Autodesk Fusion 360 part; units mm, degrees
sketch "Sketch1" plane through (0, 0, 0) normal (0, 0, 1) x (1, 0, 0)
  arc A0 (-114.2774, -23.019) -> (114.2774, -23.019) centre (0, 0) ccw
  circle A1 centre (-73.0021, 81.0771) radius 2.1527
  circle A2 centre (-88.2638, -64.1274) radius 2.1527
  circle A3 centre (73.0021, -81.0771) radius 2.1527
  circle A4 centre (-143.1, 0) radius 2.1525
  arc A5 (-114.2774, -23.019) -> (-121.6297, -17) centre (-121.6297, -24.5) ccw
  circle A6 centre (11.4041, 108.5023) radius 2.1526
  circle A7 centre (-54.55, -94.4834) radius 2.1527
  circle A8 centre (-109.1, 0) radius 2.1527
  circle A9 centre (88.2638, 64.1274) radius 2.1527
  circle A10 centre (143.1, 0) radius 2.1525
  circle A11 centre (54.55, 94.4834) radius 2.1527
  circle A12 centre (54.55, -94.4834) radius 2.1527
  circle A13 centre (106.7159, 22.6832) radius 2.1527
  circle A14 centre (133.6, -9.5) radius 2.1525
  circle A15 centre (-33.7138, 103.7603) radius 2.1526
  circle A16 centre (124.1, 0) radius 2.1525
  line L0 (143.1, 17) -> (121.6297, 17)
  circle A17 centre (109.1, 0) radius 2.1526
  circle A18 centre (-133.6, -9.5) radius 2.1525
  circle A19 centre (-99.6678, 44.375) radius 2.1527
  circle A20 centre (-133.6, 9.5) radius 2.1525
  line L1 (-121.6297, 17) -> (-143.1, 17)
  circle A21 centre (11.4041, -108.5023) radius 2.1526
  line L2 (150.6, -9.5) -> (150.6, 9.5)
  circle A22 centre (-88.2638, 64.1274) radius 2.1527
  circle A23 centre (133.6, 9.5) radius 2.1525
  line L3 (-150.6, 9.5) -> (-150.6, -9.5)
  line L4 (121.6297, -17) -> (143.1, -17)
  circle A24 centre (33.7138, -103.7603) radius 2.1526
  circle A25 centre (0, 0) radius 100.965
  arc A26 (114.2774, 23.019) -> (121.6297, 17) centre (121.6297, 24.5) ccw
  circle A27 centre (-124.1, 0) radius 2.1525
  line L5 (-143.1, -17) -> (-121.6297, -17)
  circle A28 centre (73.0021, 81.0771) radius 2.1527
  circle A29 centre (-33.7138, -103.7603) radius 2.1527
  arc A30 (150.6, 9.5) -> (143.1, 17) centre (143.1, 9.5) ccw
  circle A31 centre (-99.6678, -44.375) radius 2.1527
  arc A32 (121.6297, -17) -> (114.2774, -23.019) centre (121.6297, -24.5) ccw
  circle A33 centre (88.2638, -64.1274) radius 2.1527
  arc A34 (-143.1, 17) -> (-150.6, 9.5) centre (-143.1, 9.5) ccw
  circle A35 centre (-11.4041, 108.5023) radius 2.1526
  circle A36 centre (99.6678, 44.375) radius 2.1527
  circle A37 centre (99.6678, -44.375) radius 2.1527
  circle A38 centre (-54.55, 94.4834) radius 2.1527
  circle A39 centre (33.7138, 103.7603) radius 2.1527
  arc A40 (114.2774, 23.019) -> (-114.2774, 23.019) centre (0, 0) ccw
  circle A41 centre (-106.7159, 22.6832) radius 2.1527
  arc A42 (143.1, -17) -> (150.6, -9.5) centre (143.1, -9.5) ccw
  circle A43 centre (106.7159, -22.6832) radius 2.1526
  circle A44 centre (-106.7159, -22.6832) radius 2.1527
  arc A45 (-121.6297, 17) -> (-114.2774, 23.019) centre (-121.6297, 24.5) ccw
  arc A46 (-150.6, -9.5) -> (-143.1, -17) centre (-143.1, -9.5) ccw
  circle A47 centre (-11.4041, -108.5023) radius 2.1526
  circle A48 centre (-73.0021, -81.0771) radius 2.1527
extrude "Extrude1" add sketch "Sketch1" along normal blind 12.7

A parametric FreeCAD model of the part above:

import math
import FreeCAD as App
import Part
import Sketcher

V = App.Vector

doc = App.newDocument("Part")
body = doc.addObject("PartDesign::Body", "Body")

# Sketch on XY plane
sketch1 = body.newObject("Sketcher::SketchObject", "Sketch")
sketch1.AttachmentSupport = (doc.getObject("XY_Plane"), [""])
sketch1.MapMode = "FlatFace"
sketch1.addGeometry([
    Part.ArcOfCircle(Part.Circle(V(-121.6, -24.5, 0), V(0, 0, 1), 7.5), math.radians(11), math.radians(90)),  # 0
    Part.ArcOfCircle(Part.Circle(V(0, 0, 0), V(0, 0, 1), 116.6), math.radians(-169), math.radians(-11)),  # 1
    Part.ArcOfCircle(Part.Circle(V(121.6, -24.5, 0), V(0, 0, 1), 7.5), math.radians(90), math.radians(169)),  # 2
    Part.LineSegment(V(121.6, -17, 0), V(143.1, -17, 0)),  # 3
    Part.ArcOfCircle(Part.Circle(V(143.1, -9.5, 0), V(0, 0, 1), 7.5), math.radians(-90), math.radians(0)),  # 4
    Part.LineSegment(V(150.6, -9.5, 0), V(150.6, 9.5, 0)),  # 5
    Part.ArcOfCircle(Part.Circle(V(143.1, 9.5, 0), V(0, 0, 1), 7.5), math.radians(0), math.radians(90)),  # 6
    Part.LineSegment(V(143.1, 17, 0), V(121.6, 17, 0)),  # 7
    Part.ArcOfCircle(Part.Circle(V(121.6, 24.5, 0), V(0, 0, 1), 7.5), math.radians(-169), math.radians(-90)),  # 8
    Part.ArcOfCircle(Part.Circle(V(0, 0, 0), V(0, 0, 1), 116.6), math.radians(11), math.radians(169)),  # 9
    Part.ArcOfCircle(Part.Circle(V(-121.6, 24.5, 0), V(0, 0, 1), 7.5), math.radians(-90), math.radians(-11)),  # 10
    Part.LineSegment(V(-121.6, 17, 0), V(-143.1, 17, 0)),  # 11
    Part.ArcOfCircle(Part.Circle(V(-143.1, 9.5, 0), V(0, 0, 1), 7.5), math.radians(90), math.radians(180)),  # 12
    Part.LineSegment(V(-150.6, 9.5, 0), V(-150.6, -9.5, 0)),  # 13
    Part.ArcOfCircle(Part.Circle(V(-143.1, -9.5, 0), V(0, 0, 1), 7.5), math.radians(180), math.radians(270)),  # 14
    Part.LineSegment(V(-143.1, -17, 0), V(-121.6, -17, 0)),  # 15
    Part.Circle(V(-88.3, -64.1, 0), V(0, 0, 1), 2.2),  # 16
    Part.Circle(V(-54.5, -94.5, 0), V(0, 0, 1), 2.2),  # 17
    Part.Circle(V(-33.7, -103.8, 0), V(0, 0, 1), 2.2),  # 18
    Part.Circle(V(-11.4, -108.5, 0), V(0, 0, 1), 2.2),  # 19
    Part.Circle(V(-73, -81.1, 0), V(0, 0, 1), 2.2),  # 20
    Part.Circle(V(-99.7, -44.4, 0), V(0, 0, 1), 2.2),  # 21
    Part.Circle(V(-133.6, -9.5, 0), V(0, 0, 1), 2.2),  # 22
    Part.Circle(V(-106.7, -22.7, 0), V(0, 0, 1), 2.2),  # 23
    Part.Circle(V(11.4, -108.5, 0), V(0, 0, 1), 2.2),  # 24
    Part.Circle(V(33.7, -103.8, 0), V(0, 0, 1), 2.2),  # 25
    Part.Circle(V(54.5, -94.5, 0), V(0, 0, 1), 2.2),  # 26
    Part.Circle(V(73, -81.1, 0), V(0, 0, 1), 2.2),  # 27
    Part.Circle(V(88.3, -64.1, 0), V(0, 0, 1), 2.2),  # 28
    Part.Circle(V(99.7, -44.4, 0), V(0, 0, 1), 2.2),  # 29
    Part.Circle(V(106.7, -22.7, 0), V(0, 0, 1), 2.2),  # 30
    Part.Circle(V(133.6, -9.5, 0), V(0, 0, 1), 2.2),  # 31
    Part.Circle(V(-143.1, 0, 0), V(0, 0, 1), 2.2),  # 32
    Part.Circle(V(-133.6, 9.5, 0), V(0, 0, 1), 2.2),  # 33
    Part.Circle(V(-124.1, 0, 0), V(0, 0, 1), 2.2),  # 34
    Part.Circle(V(-109.1, 0, 0), V(0, 0, 1), 2.2),  # 35
    Part.Circle(V(-106.7, 22.7, 0), V(0, 0, 1), 2.2),  # 36
    Part.Circle(V(-99.7, 44.4, 0), V(0, 0, 1), 2.2),  # 37
    Part.Circle(V(-88.3, 64.1, 0), V(0, 0, 1), 2.2),  # 38
    Part.Circle(V(-73, 81.1, 0), V(0, 0, 1), 2.2),  # 39
    Part.Circle(V(-54.5, 94.5, 0), V(0, 0, 1), 2.2),  # 40
    Part.Circle(V(-33.7, 103.8, 0), V(0, 0, 1), 2.2),  # 41
    Part.Circle(V(-11.4, 108.5, 0), V(0, 0, 1), 2.2),  # 42
    Part.Circle(V(0, 0, 0), V(0, 0, 1), 101),  # 43
    Part.Circle(V(109.1, 0, 0), V(0, 0, 1), 2.2),  # 44
    Part.Circle(V(106.7, 22.7, 0), V(0, 0, 1), 2.2),  # 45
    Part.Circle(V(124.1, 0, 0), V(0, 0, 1), 2.2),  # 46
    Part.Circle(V(143.1, 0, 0), V(0, 0, 1), 2.2),  # 47
    Part.Circle(V(133.6, 9.5, 0), V(0, 0, 1), 2.2),  # 48
    Part.Circle(V(99.7, 44.4, 0), V(0, 0, 1), 2.2),  # 49
    Part.Circle(V(73, 81.1, 0), V(0, 0, 1), 2.2),  # 50
    Part.Circle(V(11.4, 108.5, 0), V(0, 0, 1), 2.2),  # 51
    Part.Circle(V(33.7, 103.8, 0), V(0, 0, 1), 2.2),  # 52
    Part.Circle(V(54.5, 94.5, 0), V(0, 0, 1), 2.2),  # 53
    Part.Circle(V(88.3, 64.1, 0), V(0, 0, 1), 2.2),  # 54
], False)
sketch1.addConstraint([
    Sketcher.Constraint("Tangent", 0, 1, 1, 1),
    Sketcher.Constraint("Tangent", 1, 2, 2, 2),
    Sketcher.Constraint("Tangent", 2, 1, 3, 1),
    Sketcher.Constraint("Tangent", 3, 2, 4, 1),
    Sketcher.Constraint("Tangent", 4, 2, 5, 1),
    Sketcher.Constraint("Tangent", 5, 2, 6, 1),
    Sketcher.Constraint("Tangent", 6, 2, 7, 1),
    Sketcher.Constraint("Tangent", 7, 2, 8, 2),
    Sketcher.Constraint("Tangent", 8, 1, 9, 1),
    Sketcher.Constraint("Tangent", 9, 2, 10, 2),
    Sketcher.Constraint("Tangent", 10, 1, 11, 1),
    Sketcher.Constraint("Tangent", 11, 2, 12, 1),
    Sketcher.Constraint("Tangent", 12, 2, 13, 1),
    Sketcher.Constraint("Tangent", 13, 2, 14, 1),
    Sketcher.Constraint("Tangent", 14, 2, 15, 1),
    Sketcher.Constraint("Tangent", 15, 2, 0, 2),
    Sketcher.Constraint("Horizontal", 3),
    Sketcher.Constraint("Vertical", 5),
    Sketcher.Constraint("Horizontal", 7),
    Sketcher.Constraint("Horizontal", 11),
    Sketcher.Constraint("Vertical", 13),
    Sketcher.Constraint("Horizontal", 15),
    Sketcher.Constraint("Coincident", 1, 3, -1, 1),
    Sketcher.Constraint("Coincident", 9, 3, -1, 1),
    Sketcher.Constraint("Coincident", 43, 3, -1, 1),
    Sketcher.Constraint("Equal", 0, 2),
    Sketcher.Constraint("Equal", 2, 4),
    Sketcher.Constraint("Equal", 4, 6),
    Sketcher.Constraint("Equal", 6, 8),
    Sketcher.Constraint("Equal", 1, 9),
    Sketcher.Constraint("Equal", 8, 10),
    Sketcher.Constraint("Equal", 10, 12),
    Sketcher.Constraint("Equal", 12, 14),
    Sketcher.Constraint("Equal", 16, 17),
    Sketcher.Constraint("Equal", 17, 18),
    Sketcher.Constraint("Equal", 18, 19),
    Sketcher.Constraint("Equal", 19, 20),
    Sketcher.Constraint("Equal", 20, 21),
    Sketcher.Constraint("Equal", 21, 22),
    Sketcher.Constraint("Equal", 22, 23),
    Sketcher.Constraint("Equal", 23, 24),
    Sketcher.Constraint("Equal", 24, 25),
    Sketcher.Constraint("Equal", 25, 26),
    Sketcher.Constraint("Equal", 26, 27),
    Sketcher.Constraint("Equal", 27, 28),
    Sketcher.Constraint("Equal", 28, 29),
    Sketcher.Constraint("Equal", 29, 30),
    Sketcher.Constraint("Equal", 30, 31),
    Sketcher.Constraint("Equal", 31, 32),
    Sketcher.Constraint("Equal", 32, 33),
    Sketcher.Constraint("Equal", 33, 34),
    Sketcher.Constraint("Equal", 34, 35),
    Sketcher.Constraint("Equal", 35, 36),
    Sketcher.Constraint("Equal", 36, 37),
    Sketcher.Constraint("Equal", 37, 38),
    Sketcher.Constraint("Equal", 38, 39),
    Sketcher.Constraint("Equal", 39, 40),
    Sketcher.Constraint("Equal", 40, 41),
    Sketcher.Constraint("Equal", 41, 42),
    Sketcher.Constraint("Equal", 42, 44),
    Sketcher.Constraint("Equal", 44, 45),
    Sketcher.Constraint("Equal", 45, 46),
    Sketcher.Constraint("Equal", 46, 47),
    Sketcher.Constraint("Equal", 47, 48),
    Sketcher.Constraint("Equal", 48, 49),
    Sketcher.Constraint("Equal", 49, 50),
    Sketcher.Constraint("Equal", 50, 51),
    Sketcher.Constraint("Equal", 51, 52),
    Sketcher.Constraint("Equal", 52, 53),
    Sketcher.Constraint("Equal", 53, 54),
    Sketcher.Constraint("Symmetric", 4, 3, 12, 3, -1, 1),
    Sketcher.Constraint("Symmetric", 31, 3, 33, 3, -1, 1),
    Sketcher.Constraint("Symmetric", 30, 3, 36, 3, -1, 1),
    Sketcher.Constraint("Symmetric", 29, 3, 37, 3, -1, 1),
    Sketcher.Constraint("Symmetric", 28, 3, 38, 3, -1, 1),
    Sketcher.Constraint("Symmetric", 27, 3, 39, 3, -1, 1),
    Sketcher.Constraint("Symmetric", 26, 3, 40, 3, -1, 1),
    Sketcher.Constraint("Symmetric", 25, 3, 41, 3, -1, 1),
    Sketcher.Constraint("Symmetric", 24, 3, 42, 3, -1, 1),
    Sketcher.Constraint("Symmetric", 35, 3, 44, 3, -1, 1),
    Sketcher.Constraint("Symmetric", 23, 3, 45, 3, -1, 1),
    Sketcher.Constraint("Symmetric", 34, 3, 46, 3, -1, 1),
    Sketcher.Constraint("Symmetric", 32, 3, 47, 3, -1, 1),
    Sketcher.Constraint("Symmetric", 22, 3, 48, 3, -1, 1),
    Sketcher.Constraint("Symmetric", 21, 3, 49, 3, -1, 1),
    Sketcher.Constraint("Symmetric", 20, 3, 50, 3, -1, 1),
    Sketcher.Constraint("Symmetric", 19, 3, 51, 3, -1, 1),
    Sketcher.Constraint("Symmetric", 18, 3, 52, 3, -1, 1),
    Sketcher.Constraint("Symmetric", 17, 3, 53, 3, -1, 1),
    Sketcher.Constraint("Symmetric", 16, 3, 54, 3, -1, 1),
    Sketcher.Constraint("Symmetric", 19, 3, 24, 3, -2),
    Sketcher.Constraint("Symmetric", 18, 3, 25, 3, -2),
    Sketcher.Constraint("Symmetric", 17, 3, 26, 3, -2),
    Sketcher.Constraint("Symmetric", 20, 3, 27, 3, -2),
    Sketcher.Constraint("Symmetric", 16, 3, 28, 3, -2),
    Sketcher.Constraint("Symmetric", 21, 3, 29, 3, -2),
    Sketcher.Constraint("Symmetric", 23, 3, 30, 3, -2),
    Sketcher.Constraint("Symmetric", 22, 3, 31, 3, -2),
    Sketcher.Constraint("PointOnObject", 32, 3, -1),
    Sketcher.Constraint("PointOnObject", 34, 3, -1),
    Sketcher.Constraint("PointOnObject", 35, 3, -1),
    Sketcher.Constraint("Horizontal", 0, 3, 2, 3),
    Sketcher.Constraint("Horizontal", 8, 3, 10, 3),
    Sketcher.Constraint("Horizontal", 14, 3, 22, 3),
    Sketcher.Constraint("Vertical", 14, 3, 32, 3),
    Sketcher.Constraint("Radius", 0, 7.5),
    Sketcher.Constraint("Diameter", 43, 201.93),
    Sketcher.Constraint("DistanceY", 5, 1, 5, 2, 19.0),
    Sketcher.Constraint("Diameter", 22, 4.305),
    Sketcher.Constraint("DistanceX", -1, 1, 4, 3, 143.1),
    Sketcher.Constraint("DistanceX", 22, 3, -1, 1, 133.6),
    Sketcher.Constraint("DistanceX", 34, 3, -1, 1, 124.1),
    Sketcher.Constraint("DistanceX", 35, 3, -1, 1, 109.1),
    Sketcher.Constraint("Radius", 1, 116.5727),
    Sketcher.Constraint("DistanceX", 17, 3, -1, 1, 54.55),
    Sketcher.Constraint("DistanceX", 19, 3, -1, 1, 11.404),
    Sketcher.Constraint("DistanceX", 20, 3, -1, 1, 73.002),
    Sketcher.Constraint("DistanceY", 20, 3, -1, 1, 81.077),
    Sketcher.Constraint("DistanceY", 21, 3, -1, 1, 44.375),
    Sketcher.Constraint("DistanceX", 23, 3, -1, 1, 106.716),
    Sketcher.Constraint("DistanceX", 16, 3, -1, 1, 88.2638),
    Sketcher.Constraint("DistanceY", 16, 3, -1, 1, 64.1274),
    Sketcher.Constraint("DistanceY", 17, 3, -1, 1, 94.4834),
    Sketcher.Constraint("DistanceX", 18, 3, -1, 1, 33.7138),
    Sketcher.Constraint("DistanceY", 18, 3, -1, 1, 103.7603),
    Sketcher.Constraint("DistanceY", 19, 3, -1, 1, 108.5023),
    Sketcher.Constraint("DistanceX", 21, 3, -1, 1, 99.6678),
    Sketcher.Constraint("DistanceY", 23, 3, -1, 1, 22.6832),
])
pad1 = body.newObject("PartDesign::Pad", "Pad")
pad1.Profile = sketch1
pad1.Length = 12.7

doc.recompute()
